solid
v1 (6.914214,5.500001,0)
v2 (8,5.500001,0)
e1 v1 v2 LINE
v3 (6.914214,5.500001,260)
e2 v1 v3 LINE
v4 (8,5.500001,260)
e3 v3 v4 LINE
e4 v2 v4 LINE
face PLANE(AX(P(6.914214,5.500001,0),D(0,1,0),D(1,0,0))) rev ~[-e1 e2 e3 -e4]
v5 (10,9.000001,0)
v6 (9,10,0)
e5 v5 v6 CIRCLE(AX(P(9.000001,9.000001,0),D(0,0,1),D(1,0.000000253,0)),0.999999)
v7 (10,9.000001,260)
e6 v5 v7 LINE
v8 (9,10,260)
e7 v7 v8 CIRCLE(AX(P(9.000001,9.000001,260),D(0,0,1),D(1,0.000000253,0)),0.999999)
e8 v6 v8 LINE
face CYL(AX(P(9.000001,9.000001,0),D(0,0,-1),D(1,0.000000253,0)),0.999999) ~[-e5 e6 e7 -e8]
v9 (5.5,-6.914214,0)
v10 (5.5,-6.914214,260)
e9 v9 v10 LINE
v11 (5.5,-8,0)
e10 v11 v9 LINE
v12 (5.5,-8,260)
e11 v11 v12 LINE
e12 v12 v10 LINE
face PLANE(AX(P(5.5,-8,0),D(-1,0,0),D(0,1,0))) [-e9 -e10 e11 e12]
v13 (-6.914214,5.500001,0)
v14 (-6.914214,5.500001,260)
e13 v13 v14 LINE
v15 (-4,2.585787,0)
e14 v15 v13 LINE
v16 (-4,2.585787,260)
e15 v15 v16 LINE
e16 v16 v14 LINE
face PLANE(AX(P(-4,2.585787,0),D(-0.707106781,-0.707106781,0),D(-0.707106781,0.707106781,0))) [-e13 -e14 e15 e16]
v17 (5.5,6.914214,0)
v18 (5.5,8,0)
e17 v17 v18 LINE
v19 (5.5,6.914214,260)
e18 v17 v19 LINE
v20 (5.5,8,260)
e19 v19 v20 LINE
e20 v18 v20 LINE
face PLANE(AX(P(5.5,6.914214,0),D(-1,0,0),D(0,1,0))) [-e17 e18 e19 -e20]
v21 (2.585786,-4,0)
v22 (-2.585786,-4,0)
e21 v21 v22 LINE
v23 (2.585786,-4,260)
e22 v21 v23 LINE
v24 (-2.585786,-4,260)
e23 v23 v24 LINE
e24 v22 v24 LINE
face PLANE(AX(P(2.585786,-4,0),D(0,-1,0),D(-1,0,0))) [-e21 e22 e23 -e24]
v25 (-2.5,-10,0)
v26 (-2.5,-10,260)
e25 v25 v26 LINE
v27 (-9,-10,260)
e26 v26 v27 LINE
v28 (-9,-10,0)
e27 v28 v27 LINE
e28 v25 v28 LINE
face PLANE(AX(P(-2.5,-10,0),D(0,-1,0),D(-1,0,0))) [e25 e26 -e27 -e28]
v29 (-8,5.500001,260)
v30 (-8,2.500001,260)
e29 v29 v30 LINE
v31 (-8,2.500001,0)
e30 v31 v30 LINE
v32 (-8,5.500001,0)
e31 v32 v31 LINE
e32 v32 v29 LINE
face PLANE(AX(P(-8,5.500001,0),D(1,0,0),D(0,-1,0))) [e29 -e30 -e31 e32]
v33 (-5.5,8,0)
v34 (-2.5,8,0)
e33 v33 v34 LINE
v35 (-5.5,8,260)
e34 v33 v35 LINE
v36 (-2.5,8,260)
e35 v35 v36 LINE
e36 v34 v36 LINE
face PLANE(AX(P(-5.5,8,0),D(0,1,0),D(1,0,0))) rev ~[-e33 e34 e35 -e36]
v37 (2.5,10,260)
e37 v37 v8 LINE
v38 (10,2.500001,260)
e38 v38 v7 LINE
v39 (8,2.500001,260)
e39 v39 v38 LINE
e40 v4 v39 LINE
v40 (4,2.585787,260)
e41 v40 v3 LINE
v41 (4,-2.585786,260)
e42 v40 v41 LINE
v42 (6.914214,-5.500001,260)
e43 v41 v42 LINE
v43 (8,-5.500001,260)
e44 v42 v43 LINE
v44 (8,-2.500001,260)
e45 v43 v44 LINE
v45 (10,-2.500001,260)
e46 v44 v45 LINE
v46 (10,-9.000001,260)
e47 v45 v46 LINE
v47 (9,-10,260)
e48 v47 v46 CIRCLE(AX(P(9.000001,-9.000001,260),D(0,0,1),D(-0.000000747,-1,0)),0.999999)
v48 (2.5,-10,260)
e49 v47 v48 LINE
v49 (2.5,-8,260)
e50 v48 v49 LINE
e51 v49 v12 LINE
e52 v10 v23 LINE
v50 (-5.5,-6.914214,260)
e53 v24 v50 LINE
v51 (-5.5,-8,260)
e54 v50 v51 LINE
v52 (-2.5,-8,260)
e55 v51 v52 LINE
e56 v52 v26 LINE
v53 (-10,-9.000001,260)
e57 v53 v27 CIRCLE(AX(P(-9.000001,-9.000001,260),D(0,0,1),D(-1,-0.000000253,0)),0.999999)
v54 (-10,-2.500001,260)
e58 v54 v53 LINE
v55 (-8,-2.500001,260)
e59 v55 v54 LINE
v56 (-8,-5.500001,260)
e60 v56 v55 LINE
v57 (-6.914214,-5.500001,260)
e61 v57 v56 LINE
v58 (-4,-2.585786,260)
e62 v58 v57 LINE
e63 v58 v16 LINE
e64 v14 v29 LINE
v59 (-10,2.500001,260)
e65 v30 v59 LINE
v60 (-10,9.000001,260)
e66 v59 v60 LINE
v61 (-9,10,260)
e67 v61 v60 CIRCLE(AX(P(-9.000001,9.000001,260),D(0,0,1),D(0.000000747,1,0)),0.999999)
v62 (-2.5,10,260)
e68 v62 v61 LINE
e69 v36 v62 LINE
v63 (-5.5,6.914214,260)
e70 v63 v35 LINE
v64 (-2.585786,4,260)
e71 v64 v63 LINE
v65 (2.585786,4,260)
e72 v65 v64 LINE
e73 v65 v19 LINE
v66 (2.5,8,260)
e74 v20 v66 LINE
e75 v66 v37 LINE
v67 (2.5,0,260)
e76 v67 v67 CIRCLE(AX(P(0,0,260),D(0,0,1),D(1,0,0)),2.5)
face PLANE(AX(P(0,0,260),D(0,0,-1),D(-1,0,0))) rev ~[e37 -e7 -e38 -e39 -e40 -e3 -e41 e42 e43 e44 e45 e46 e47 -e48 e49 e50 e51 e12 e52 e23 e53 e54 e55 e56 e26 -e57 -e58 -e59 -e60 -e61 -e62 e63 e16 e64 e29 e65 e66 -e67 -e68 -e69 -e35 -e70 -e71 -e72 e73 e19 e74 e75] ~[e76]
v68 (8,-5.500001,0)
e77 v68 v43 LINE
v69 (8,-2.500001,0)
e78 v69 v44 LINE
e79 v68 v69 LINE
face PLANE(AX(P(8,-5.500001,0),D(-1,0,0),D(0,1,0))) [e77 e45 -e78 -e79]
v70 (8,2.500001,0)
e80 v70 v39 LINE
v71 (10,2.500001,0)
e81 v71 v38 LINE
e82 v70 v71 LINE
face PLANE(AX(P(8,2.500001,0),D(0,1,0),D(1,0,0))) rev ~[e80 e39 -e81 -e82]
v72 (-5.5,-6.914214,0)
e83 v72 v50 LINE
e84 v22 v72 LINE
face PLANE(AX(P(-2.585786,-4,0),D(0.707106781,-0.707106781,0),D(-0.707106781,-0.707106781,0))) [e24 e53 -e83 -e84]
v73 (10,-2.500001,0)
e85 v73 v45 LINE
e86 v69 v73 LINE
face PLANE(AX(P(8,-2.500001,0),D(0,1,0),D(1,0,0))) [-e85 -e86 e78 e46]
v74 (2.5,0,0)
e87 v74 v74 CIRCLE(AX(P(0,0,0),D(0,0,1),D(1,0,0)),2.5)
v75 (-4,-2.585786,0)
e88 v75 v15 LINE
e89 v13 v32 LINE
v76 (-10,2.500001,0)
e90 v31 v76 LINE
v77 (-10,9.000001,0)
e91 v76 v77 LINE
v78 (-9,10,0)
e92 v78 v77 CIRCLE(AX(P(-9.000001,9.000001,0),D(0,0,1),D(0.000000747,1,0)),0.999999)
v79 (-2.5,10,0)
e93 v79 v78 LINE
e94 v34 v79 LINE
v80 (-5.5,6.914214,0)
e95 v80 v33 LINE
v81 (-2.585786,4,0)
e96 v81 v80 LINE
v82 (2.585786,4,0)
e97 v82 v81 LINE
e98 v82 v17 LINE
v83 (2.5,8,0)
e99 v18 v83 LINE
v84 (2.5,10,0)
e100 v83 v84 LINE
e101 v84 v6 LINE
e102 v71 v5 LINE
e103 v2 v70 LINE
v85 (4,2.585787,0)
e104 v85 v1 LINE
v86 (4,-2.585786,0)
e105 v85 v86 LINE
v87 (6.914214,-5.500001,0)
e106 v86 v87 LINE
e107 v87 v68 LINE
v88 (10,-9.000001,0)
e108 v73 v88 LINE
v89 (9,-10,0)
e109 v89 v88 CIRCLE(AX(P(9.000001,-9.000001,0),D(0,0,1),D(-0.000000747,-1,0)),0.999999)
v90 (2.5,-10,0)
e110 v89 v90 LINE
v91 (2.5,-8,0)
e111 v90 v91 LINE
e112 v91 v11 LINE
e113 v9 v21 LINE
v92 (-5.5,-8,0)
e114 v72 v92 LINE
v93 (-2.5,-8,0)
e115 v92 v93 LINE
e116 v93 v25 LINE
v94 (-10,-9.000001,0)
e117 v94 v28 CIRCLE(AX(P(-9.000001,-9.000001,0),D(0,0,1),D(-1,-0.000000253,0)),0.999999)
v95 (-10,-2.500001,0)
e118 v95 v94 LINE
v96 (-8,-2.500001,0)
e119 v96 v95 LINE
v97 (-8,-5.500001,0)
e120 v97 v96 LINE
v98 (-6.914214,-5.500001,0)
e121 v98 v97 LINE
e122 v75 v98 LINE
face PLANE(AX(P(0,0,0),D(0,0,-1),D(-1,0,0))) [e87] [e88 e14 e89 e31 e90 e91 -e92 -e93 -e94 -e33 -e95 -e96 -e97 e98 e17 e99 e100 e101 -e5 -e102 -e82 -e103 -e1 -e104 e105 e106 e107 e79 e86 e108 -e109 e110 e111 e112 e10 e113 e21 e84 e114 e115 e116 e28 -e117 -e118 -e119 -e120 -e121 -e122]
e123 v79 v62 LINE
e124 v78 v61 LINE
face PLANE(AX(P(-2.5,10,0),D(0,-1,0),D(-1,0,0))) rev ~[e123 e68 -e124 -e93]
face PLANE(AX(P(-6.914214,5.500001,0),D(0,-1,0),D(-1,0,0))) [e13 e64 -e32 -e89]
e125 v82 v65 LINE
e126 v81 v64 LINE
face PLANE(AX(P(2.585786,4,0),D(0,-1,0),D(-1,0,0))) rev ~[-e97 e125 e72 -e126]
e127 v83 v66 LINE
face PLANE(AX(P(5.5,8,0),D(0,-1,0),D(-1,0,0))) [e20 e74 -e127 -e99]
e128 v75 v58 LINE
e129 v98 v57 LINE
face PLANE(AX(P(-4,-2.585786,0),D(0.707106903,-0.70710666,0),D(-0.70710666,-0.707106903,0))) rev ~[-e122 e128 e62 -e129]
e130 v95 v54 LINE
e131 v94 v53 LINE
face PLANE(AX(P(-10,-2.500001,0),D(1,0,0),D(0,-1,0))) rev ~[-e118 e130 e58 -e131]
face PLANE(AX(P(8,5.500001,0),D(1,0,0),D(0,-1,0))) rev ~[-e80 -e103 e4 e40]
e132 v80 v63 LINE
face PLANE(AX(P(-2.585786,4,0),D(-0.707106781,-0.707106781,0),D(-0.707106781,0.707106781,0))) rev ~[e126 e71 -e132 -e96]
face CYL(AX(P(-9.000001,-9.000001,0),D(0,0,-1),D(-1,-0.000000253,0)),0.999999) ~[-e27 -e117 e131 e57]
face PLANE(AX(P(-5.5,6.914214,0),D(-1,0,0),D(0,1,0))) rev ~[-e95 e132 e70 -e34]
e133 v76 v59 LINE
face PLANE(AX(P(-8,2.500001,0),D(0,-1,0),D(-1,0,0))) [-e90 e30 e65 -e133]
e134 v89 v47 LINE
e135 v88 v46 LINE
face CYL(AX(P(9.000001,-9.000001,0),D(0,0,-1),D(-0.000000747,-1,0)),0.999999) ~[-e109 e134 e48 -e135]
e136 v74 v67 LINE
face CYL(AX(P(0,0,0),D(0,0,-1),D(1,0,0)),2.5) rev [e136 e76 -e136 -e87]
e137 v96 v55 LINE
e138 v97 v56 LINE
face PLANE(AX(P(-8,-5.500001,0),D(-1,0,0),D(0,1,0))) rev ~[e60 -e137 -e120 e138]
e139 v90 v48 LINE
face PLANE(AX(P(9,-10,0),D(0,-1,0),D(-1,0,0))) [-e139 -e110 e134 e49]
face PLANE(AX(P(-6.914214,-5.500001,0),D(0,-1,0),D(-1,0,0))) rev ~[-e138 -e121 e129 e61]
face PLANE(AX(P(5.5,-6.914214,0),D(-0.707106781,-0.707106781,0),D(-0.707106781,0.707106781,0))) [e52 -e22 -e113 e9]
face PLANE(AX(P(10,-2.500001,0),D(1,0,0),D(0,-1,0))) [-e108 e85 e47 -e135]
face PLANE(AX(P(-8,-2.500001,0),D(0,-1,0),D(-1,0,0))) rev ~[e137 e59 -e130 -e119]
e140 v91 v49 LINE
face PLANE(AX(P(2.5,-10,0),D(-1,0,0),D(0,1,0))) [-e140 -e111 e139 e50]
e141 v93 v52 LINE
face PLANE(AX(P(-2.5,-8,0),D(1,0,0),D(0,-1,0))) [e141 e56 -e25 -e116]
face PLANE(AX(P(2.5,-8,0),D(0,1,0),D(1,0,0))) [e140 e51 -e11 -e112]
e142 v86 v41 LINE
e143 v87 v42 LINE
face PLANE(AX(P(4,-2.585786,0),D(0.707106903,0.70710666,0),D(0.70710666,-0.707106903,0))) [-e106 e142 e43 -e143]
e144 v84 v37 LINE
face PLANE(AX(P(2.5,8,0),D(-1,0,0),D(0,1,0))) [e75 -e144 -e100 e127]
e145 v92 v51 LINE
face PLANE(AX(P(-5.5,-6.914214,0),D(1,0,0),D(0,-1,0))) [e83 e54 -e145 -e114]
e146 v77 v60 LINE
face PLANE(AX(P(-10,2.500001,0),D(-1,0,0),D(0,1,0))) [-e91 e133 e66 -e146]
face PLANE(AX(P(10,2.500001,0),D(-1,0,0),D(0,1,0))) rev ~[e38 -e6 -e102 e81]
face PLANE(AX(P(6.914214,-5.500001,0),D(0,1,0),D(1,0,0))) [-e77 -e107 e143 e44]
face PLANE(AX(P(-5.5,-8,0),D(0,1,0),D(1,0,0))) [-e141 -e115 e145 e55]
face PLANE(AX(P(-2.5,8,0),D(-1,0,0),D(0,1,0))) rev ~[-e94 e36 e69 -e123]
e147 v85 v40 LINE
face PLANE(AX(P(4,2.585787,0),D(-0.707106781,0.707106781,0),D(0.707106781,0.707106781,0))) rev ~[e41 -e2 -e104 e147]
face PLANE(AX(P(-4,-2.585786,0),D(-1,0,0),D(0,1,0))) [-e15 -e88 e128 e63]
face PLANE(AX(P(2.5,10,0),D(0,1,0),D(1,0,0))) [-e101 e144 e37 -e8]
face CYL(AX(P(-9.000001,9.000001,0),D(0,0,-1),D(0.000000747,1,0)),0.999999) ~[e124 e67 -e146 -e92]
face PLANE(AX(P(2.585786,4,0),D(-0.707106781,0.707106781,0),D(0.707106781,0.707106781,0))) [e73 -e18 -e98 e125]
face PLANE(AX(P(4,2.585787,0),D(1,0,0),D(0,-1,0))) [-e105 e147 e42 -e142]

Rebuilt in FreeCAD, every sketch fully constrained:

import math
import FreeCAD as App
import Part
import Sketcher
Q = App.Units.Quantity

doc = App.newDocument("Part")
body = doc.addObject("PartDesign::Body", "Body")

# Sketch on XY plane
sketch1 = body.newObject("Sketcher::SketchObject", "Sketch")
sketch1.AttachmentSupport = (doc.getObject("XY_Plane"), [""])
sketch1.MapMode = "FlatFace"
sketch1.addGeometry([
    Part.LineSegment(App.Vector(-4, 2.6, 0), App.Vector(-4, -2.6, 0)),  # 0
    Part.LineSegment(App.Vector(-4, -2.6, 0), App.Vector(-6.9, -5.5, 0)),  # 1
    Part.LineSegment(App.Vector(-6.9, -5.5, 0), App.Vector(-8, -5.5, 0)),  # 2
    Part.LineSegment(App.Vector(-8, -5.5, 0), App.Vector(-8, -2.5, 0)),  # 3
    Part.LineSegment(App.Vector(-8, -2.5, 0), App.Vector(-10, -2.5, 0)),  # 4
    Part.LineSegment(App.Vector(-10, -2.5, 0), App.Vector(-10, -9, 0)),  # 5
    Part.ArcOfCircle(Part.Circle(App.Vector(-9, -9, 0), App.Vector(0, 0, 1), 1), math.radians(-180), math.radians(-90)),  # 6
    Part.LineSegment(App.Vector(-9, -10, 0), App.Vector(-2.5, -10, 0)),  # 7
    Part.LineSegment(App.Vector(-2.5, -10, 0), App.Vector(-2.5, -8, 0)),  # 8
    Part.LineSegment(App.Vector(-2.5, -8, 0), App.Vector(-5.5, -8, 0)),  # 9
    Part.LineSegment(App.Vector(-5.5, -8, 0), App.Vector(-5.5, -6.9, 0)),  # 10
    Part.LineSegment(App.Vector(-5.5, -6.9, 0), App.Vector(-2.6, -4, 0)),  # 11
    Part.LineSegment(App.Vector(-2.6, -4, 0), App.Vector(2.6, -4, 0)),  # 12
    Part.LineSegment(App.Vector(2.6, -4, 0), App.Vector(5.5, -6.9, 0)),  # 13
    Part.LineSegment(App.Vector(5.5, -6.9, 0), App.Vector(5.5, -8, 0)),  # 14
    Part.LineSegment(App.Vector(5.5, -8, 0), App.Vector(2.5, -8, 0)),  # 15
    Part.LineSegment(App.Vector(2.5, -8, 0), App.Vector(2.5, -10, 0)),  # 16
    Part.LineSegment(App.Vector(2.5, -10, 0), App.Vector(9, -10, 0)),  # 17
    Part.ArcOfCircle(Part.Circle(App.Vector(9, -9, 0), App.Vector(0, 0, 1), 1), math.radians(-90), math.radians(0)),  # 18
    Part.LineSegment(App.Vector(10, -9, 0), App.Vector(10, -2.5, 0)),  # 19
    Part.LineSegment(App.Vector(10, -2.5, 0), App.Vector(8, -2.5, 0)),  # 20
    Part.LineSegment(App.Vector(8, -2.5, 0), App.Vector(8, -5.5, 0)),  # 21
    Part.LineSegment(App.Vector(8, -5.5, 0), App.Vector(6.9, -5.5, 0)),  # 22
    Part.LineSegment(App.Vector(6.9, -5.5, 0), App.Vector(4, -2.6, 0)),  # 23
    Part.LineSegment(App.Vector(4, -2.6, 0), App.Vector(4, 2.6, 0)),  # 24
    Part.LineSegment(App.Vector(4, 2.6, 0), App.Vector(6.9, 5.5, 0)),  # 25
    Part.LineSegment(App.Vector(6.9, 5.5, 0), App.Vector(8, 5.5, 0)),  # 26
    Part.LineSegment(App.Vector(8, 5.5, 0), App.Vector(8, 2.5, 0)),  # 27
    Part.LineSegment(App.Vector(8, 2.5, 0), App.Vector(10, 2.5, 0)),  # 28
    Part.LineSegment(App.Vector(10, 2.5, 0), App.Vector(10, 9, 0)),  # 29
    Part.ArcOfCircle(Part.Circle(App.Vector(9, 9, 0), App.Vector(0, 0, 1), 1), math.radians(0), math.radians(90)),  # 30
    Part.LineSegment(App.Vector(9, 10, 0), App.Vector(2.5, 10, 0)),  # 31
    Part.LineSegment(App.Vector(2.5, 10, 0), App.Vector(2.5, 8, 0)),  # 32
    Part.LineSegment(App.Vector(2.5, 8, 0), App.Vector(5.5, 8, 0)),  # 33
    Part.LineSegment(App.Vector(5.5, 8, 0), App.Vector(5.5, 6.9, 0)),  # 34
    Part.LineSegment(App.Vector(5.5, 6.9, 0), App.Vector(2.6, 4, 0)),  # 35
    Part.LineSegment(App.Vector(2.6, 4, 0), App.Vector(-2.6, 4, 0)),  # 36
    Part.LineSegment(App.Vector(-2.6, 4, 0), App.Vector(-5.5, 6.9, 0)),  # 37
    Part.LineSegment(App.Vector(-5.5, 6.9, 0), App.Vector(-5.5, 8, 0)),  # 38
    Part.LineSegment(App.Vector(-5.5, 8, 0), App.Vector(-2.5, 8, 0)),  # 39
    Part.LineSegment(App.Vector(-2.5, 8, 0), App.Vector(-2.5, 10, 0)),  # 40
    Part.LineSegment(App.Vector(-2.5, 10, 0), App.Vector(-9, 10, 0)),  # 41
    Part.ArcOfCircle(Part.Circle(App.Vector(-9, 9, 0), App.Vector(0, 0, 1), 1), math.radians(90), math.radians(180)),  # 42
    Part.LineSegment(App.Vector(-10, 9, 0), App.Vector(-10, 2.5, 0)),  # 43
    Part.LineSegment(App.Vector(-10, 2.5, 0), App.Vector(-8, 2.5, 0)),  # 44
    Part.LineSegment(App.Vector(-8, 2.5, 0), App.Vector(-8, 5.5, 0)),  # 45
    Part.LineSegment(App.Vector(-8, 5.5, 0), App.Vector(-6.9, 5.5, 0)),  # 46
    Part.LineSegment(App.Vector(-6.9, 5.5, 0), App.Vector(-4, 2.6, 0)),  # 47
    Part.Circle(App.Vector(0, 0, 0), App.Vector(0, 0, 1), 2.5),  # 48
], False)
sketch1.addConstraint([
    Sketcher.Constraint("Coincident", 0, 2, 1, 1),
    Sketcher.Constraint("Coincident", 1, 2, 2, 1),
    Sketcher.Constraint("Coincident", 2, 2, 3, 1),
    Sketcher.Constraint("Coincident", 3, 2, 4, 1),
    Sketcher.Constraint("Coincident", 4, 2, 5, 1),
    Sketcher.Constraint("Tangent", 5, 2, 6, 1),
    Sketcher.Constraint("Tangent", 6, 2, 7, 1),
    Sketcher.Constraint("Coincident", 7, 2, 8, 1),
    Sketcher.Constraint("Coincident", 8, 2, 9, 1),
    Sketcher.Constraint("Coincident", 9, 2, 10, 1),
    Sketcher.Constraint("Coincident", 10, 2, 11, 1),
    Sketcher.Constraint("Coincident", 11, 2, 12, 1),
    Sketcher.Constraint("Coincident", 12, 2, 13, 1),
    Sketcher.Constraint("Coincident", 13, 2, 14, 1),
    Sketcher.Constraint("Coincident", 14, 2, 15, 1),
    Sketcher.Constraint("Coincident", 15, 2, 16, 1),
    Sketcher.Constraint("Coincident", 16, 2, 17, 1),
    Sketcher.Constraint("Tangent", 17, 2, 18, 1),
    Sketcher.Constraint("Tangent", 18, 2, 19, 1),
    Sketcher.Constraint("Coincident", 19, 2, 20, 1),
    Sketcher.Constraint("Coincident", 20, 2, 21, 1),
    Sketcher.Constraint("Coincident", 21, 2, 22, 1),
    Sketcher.Constraint("Coincident", 22, 2, 23, 1),
    Sketcher.Constraint("Coincident", 23, 2, 24, 1),
    Sketcher.Constraint("Coincident", 24, 2, 25, 1),
    Sketcher.Constraint("Coincident", 25, 2, 26, 1),
    Sketcher.Constraint("Coincident", 26, 2, 27, 1),
    Sketcher.Constraint("Coincident", 27, 2, 28, 1),
    Sketcher.Constraint("Coincident", 28, 2, 29, 1),
    Sketcher.Constraint("Tangent", 29, 2, 30, 1),
    Sketcher.Constraint("Tangent", 30, 2, 31, 1),
    Sketcher.Constraint("Coincident", 31, 2, 32, 1),
    Sketcher.Constraint("Coincident", 32, 2, 33, 1),
    Sketcher.Constraint("Coincident", 33, 2, 34, 1),
    Sketcher.Constraint("Coincident", 34, 2, 35, 1),
    Sketcher.Constraint("Coincident", 35, 2, 36, 1),
    Sketcher.Constraint("Coincident", 36, 2, 37, 1),
    Sketcher.Constraint("Coincident", 37, 2, 38, 1),
    Sketcher.Constraint("Coincident", 38, 2, 39, 1),
    Sketcher.Constraint("Coincident", 39, 2, 40, 1),
    Sketcher.Constraint("Coincident", 40, 2, 41, 1),
    Sketcher.Constraint("Tangent", 41, 2, 42, 1),
    Sketcher.Constraint("Tangent", 42, 2, 43, 1),
    Sketcher.Constraint("Coincident", 43, 2, 44, 1),
    Sketcher.Constraint("Coincident", 44, 2, 45, 1),
    Sketcher.Constraint("Coincident", 45, 2, 46, 1),
    Sketcher.Constraint("Coincident", 46, 2, 47, 1),
    Sketcher.Constraint("Coincident", 47, 2, 0, 1),
    Sketcher.Constraint("Vertical", 0),
    Sketcher.Constraint("Horizontal", 2),
    Sketcher.Constraint("Vertical", 3),
    Sketcher.Constraint("Horizontal", 4),
    Sketcher.Constraint("Vertical", 5),
    Sketcher.Constraint("Horizontal", 7),
    Sketcher.Constraint("Vertical", 8),
    Sketcher.Constraint("Horizontal", 9),
    Sketcher.Constraint("Vertical", 10),
    Sketcher.Constraint("Horizontal", 12),
    Sketcher.Constraint("Vertical", 14),
    Sketcher.Constraint("Horizontal", 15),
    Sketcher.Constraint("Vertical", 16),
    Sketcher.Constraint("Horizontal", 17),
    Sketcher.Constraint("Vertical", 19),
    Sketcher.Constraint("Horizontal", 20),
    Sketcher.Constraint("Vertical", 21),
    Sketcher.Constraint("Horizontal", 22),
    Sketcher.Constraint("Vertical", 24),
    Sketcher.Constraint("Horizontal", 26),
    Sketcher.Constraint("Vertical", 27),
    Sketcher.Constraint("Horizontal", 28),
    Sketcher.Constraint("Vertical", 29),
    Sketcher.Constraint("Horizontal", 31),
    Sketcher.Constraint("Vertical", 32),
    Sketcher.Constraint("Horizontal", 33),
    Sketcher.Constraint("Vertical", 34),
    Sketcher.Constraint("Horizontal", 36),
    Sketcher.Constraint("Vertical", 38),
    Sketcher.Constraint("Horizontal", 39),
    Sketcher.Constraint("Vertical", 40),
    Sketcher.Constraint("Horizontal", 41),
    Sketcher.Constraint("Vertical", 43),
    Sketcher.Constraint("Horizontal", 44),
    Sketcher.Constraint("Vertical", 45),
    Sketcher.Constraint("Horizontal", 46),
    Sketcher.Constraint("Coincident", 48, 3, -1, 1),
    Sketcher.Constraint("Equal", 6, 18),
    Sketcher.Constraint("Equal", 18, 30),
    Sketcher.Constraint("Equal", 30, 42),
    Sketcher.Constraint("Symmetric", 6, 3, 30, 3, -1, 1),
    Sketcher.Constraint("Symmetric", 18, 3, 42, 3, -1, 1),
    Sketcher.Constraint("Symmetric", 0, 2, 24, 2, -1, 1),
    Sketcher.Constraint("Symmetric", 1, 2, 25, 2, -1, 1),
    Sketcher.Constraint("Symmetric", 3, 2, 27, 2, -1, 1),
    Sketcher.Constraint("Symmetric", 8, 2, 32, 2, -1, 1),
    Sketcher.Constraint("Symmetric", 10, 2, 34, 2, -1, 1),
    Sketcher.Constraint("Symmetric", 11, 2, 35, 2, -1, 1),
    Sketcher.Constraint("Symmetric", 13, 2, 37, 2, -1, 1),
    Sketcher.Constraint("Symmetric", 15, 2, 39, 2, -1, 1),
    Sketcher.Constraint("Symmetric", 20, 2, 44, 2, -1, 1),
    Sketcher.Constraint("Symmetric", 22, 2, 46, 2, -1, 1),
    Sketcher.Constraint("Symmetric", 6, 3, 18, 3, -2),
    Sketcher.Constraint("Symmetric", 10, 2, 13, 2, -2),
    Sketcher.Constraint("Symmetric", 8, 2, 15, 2, -2),
    Sketcher.Constraint("Symmetric", 3, 2, 20, 2, -2),
    Sketcher.Constraint("Symmetric", 1, 2, 22, 2, -2),
    Sketcher.Constraint("Parallel", 1, 11),
    Sketcher.Constraint("Perpendicular", 11, 13),
    Sketcher.Constraint("Parallel", 13, 23),
    Sketcher.Constraint("Perpendicular", 35, 37),
    Sketcher.Constraint("Parallel", 37, 47),
    Sketcher.Constraint("Horizontal", 0, 2, 23, 2),
    Sketcher.Constraint("Equal", 36, 0),
    Sketcher.Constraint("Equal", 39, 3),
    Sketcher.Constraint("Equal", 41, 5),
    Sketcher.Constraint("Equal", 44, 8),
    Sketcher.Constraint("Equal", 46, 10),
    Sketcher.Constraint("Equal", 1, 11),
    Sketcher.Constraint("Diameter", 48, Q("5 mm")),
    Sketcher.Constraint("Radius", 6, Q("0.999999 mm")),
    Sketcher.Constraint("DistanceX", 4, 2, 4, 1, Q("2 mm")),
    Sketcher.Constraint("DistanceX", 9, 2, 9, 1, Q("3 mm")),
    Sketcher.Constraint("DistanceX", 7, 1, 7, 2, Q("6.5 mm")),
    Sketcher.Constraint("DistanceX", 6, 3, -1, 1, Q("9.000001 mm")),
    Sketcher.Constraint("DistanceX", 0, 2, -1, 1, Q("4 mm")),
    Sketcher.Constraint("Distance", 1, Q("4.121322 mm")),
])
pad1 = body.newObject("PartDesign::Pad", "Pad")
pad1.Profile = sketch1
pad1.Length = 260

doc.recompute()
